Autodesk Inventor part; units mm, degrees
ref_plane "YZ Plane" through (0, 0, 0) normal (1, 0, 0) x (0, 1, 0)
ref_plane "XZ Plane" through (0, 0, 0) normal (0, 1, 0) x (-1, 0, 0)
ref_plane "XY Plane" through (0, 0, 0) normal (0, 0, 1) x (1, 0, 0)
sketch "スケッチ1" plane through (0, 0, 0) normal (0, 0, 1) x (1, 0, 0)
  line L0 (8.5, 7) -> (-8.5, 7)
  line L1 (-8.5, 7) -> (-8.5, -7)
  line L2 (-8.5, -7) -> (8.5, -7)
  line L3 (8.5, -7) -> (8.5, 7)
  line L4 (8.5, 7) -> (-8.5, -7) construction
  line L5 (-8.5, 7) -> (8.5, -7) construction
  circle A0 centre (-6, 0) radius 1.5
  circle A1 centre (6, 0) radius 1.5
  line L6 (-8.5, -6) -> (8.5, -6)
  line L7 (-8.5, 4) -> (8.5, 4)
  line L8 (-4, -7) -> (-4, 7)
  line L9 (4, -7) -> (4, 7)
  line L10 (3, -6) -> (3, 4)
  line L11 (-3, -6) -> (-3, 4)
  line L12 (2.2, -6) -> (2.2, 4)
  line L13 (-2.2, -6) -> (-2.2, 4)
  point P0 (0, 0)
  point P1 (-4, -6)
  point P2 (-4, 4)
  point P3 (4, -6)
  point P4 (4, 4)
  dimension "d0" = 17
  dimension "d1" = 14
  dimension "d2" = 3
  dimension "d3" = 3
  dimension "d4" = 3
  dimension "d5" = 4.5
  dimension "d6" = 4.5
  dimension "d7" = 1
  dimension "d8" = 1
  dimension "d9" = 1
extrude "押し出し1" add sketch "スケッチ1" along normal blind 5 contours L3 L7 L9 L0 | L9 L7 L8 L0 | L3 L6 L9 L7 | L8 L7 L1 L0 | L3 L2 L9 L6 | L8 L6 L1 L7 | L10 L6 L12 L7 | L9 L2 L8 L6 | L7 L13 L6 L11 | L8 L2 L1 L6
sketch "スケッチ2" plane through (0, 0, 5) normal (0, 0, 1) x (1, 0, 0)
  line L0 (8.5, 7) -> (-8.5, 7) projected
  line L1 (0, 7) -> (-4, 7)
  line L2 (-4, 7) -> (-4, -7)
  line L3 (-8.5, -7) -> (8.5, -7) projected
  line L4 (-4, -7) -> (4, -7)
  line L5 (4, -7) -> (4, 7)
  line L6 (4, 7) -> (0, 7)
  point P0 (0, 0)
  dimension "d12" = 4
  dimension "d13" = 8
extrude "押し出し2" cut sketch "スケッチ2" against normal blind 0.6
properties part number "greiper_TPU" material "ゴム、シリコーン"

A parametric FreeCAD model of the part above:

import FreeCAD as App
import Part
import Sketcher

V = App.Vector
Q = App.Units.Quantity


def add_polygon(sketch, points):
    """Adds a closed chain of lines whose ends are joined by coincident constraints."""
    first, n = sketch.GeometryCount, len(points)
    for a, b in zip(points, points[1:] + points[:1]):
        sketch.addGeometry(Part.LineSegment(App.Vector(*a, 0), App.Vector(*b, 0)), False)
    for i in range(n):
        sketch.addConstraint(Sketcher.Constraint("Coincident", first + i, 2, first + (i + 1) % n, 1))

doc = App.newDocument("Part")
params = doc.addObject("Spreadsheet::Sheet", "Params")
for row, (alias, value) in enumerate([
    ("sketch1_diameter", "3 mm"),
    ("sketch1_width", "17 mm"),
    ("sketch1_width2", "1 mm"),
    ("sketch1_height", "14 mm"),
    ("sketch1_width3", "4.4 mm"),
    ("pad1_length", "5 mm"),
    ("sketch2_width", "8 mm"),
    ("sketch2_height", "14 mm"),
    ("pocket1_length", "0.6 mm"),
], start=1):
    params.set(f"A{row}", alias)
    params.set(f"B{row}", "=" + value)
    params.setAlias(f"B{row}", alias)

body = doc.addObject("PartDesign::Body", "Body")

# Sketch on XY plane
sketch1 = body.newObject("Sketcher::SketchObject", "Sketch")
sketch1.AttachmentSupport = (doc.getObject("XY_Plane"), [""])
sketch1.MapMode = "FlatFace"
add_polygon(sketch1, [(8.5, 7), (-8.5, 7), (-8.5, -7), (8.5, -7)])  # lines 0-3
add_polygon(sketch1, [(4, 4), (4, -6), (3, -6), (3, 4)])  # lines 4-7
sketch1.addGeometry(Part.Circle(V(6, 0, 0), V(0, 0, 1), 1.5), False)  # 8
add_polygon(sketch1, [(-2.2, 4), (2.2, 4), (2.2, -6), (-2.2, -6)])  # lines 9-12
add_polygon(sketch1, [(-4, 4), (-3, 4), (-3, -6), (-4, -6)])  # lines 13-16
sketch1.addGeometry(Part.Circle(V(-6, 0, 0), V(0, 0, 1), 1.5), False)  # 17
sketch1.addConstraint([
    Sketcher.Constraint("Horizontal", 0),
    Sketcher.Constraint("Vertical", 1),
    Sketcher.Constraint("Horizontal", 2),
    Sketcher.Constraint("Vertical", 3),
    Sketcher.Constraint("Vertical", 4),
    Sketcher.Constraint("Horizontal", 5),
    Sketcher.Constraint("Vertical", 6),
    Sketcher.Constraint("Horizontal", 7),
    Sketcher.Constraint("Horizontal", 9),
    Sketcher.Constraint("Vertical", 10),
    Sketcher.Constraint("Horizontal", 11),
    Sketcher.Constraint("Vertical", 12),
    Sketcher.Constraint("Horizontal", 13),
    Sketcher.Constraint("Vertical", 14),
    Sketcher.Constraint("Horizontal", 15),
    Sketcher.Constraint("Vertical", 16),
    Sketcher.Constraint("Equal", 8, 17),
    Sketcher.Constraint("Symmetric", 8, 3, 17, 3, -1, 1),
    Sketcher.Constraint("Symmetric", 0, 2, 2, 2, -1, 1),
    Sketcher.Constraint("Symmetric", 6, 2, 13, 2, -2),
    Sketcher.Constraint("Symmetric", 4, 2, 15, 2, -2),
    Sketcher.Constraint("PointOnObject", 8, 3, -1),
    Sketcher.Constraint("Horizontal", 7, 2, 9, 2),
    Sketcher.Constraint("Horizontal", 5, 2, 10, 2),
    Sketcher.Constraint("Diameter", 8, Q("3 mm")),
    Sketcher.Constraint("DistanceX", 0, 2, 0, 1, Q("17 mm")),
    Sketcher.Constraint("DistanceX", 5, 2, 5, 1, Q("1 mm")),
    Sketcher.Constraint("DistanceY", 1, 2, 1, 1, Q("14 mm")),
    Sketcher.Constraint("DistanceX", -1, 1, 5, 2, Q("3 mm")),
    Sketcher.Constraint("DistanceY", 2, 2, 4, 2, Q("1 mm")),
    Sketcher.Constraint("DistanceX", 5, 2, 8, 3, Q("3 mm")),
    Sketcher.Constraint("DistanceY", 6, 2, 3, 2, Q("3 mm")),
    Sketcher.Constraint("DistanceX", 9, 1, 9, 2, Q("4.4 mm")),
    Sketcher.Constraint("DistanceX", -1, 1, 9, 2, Q("2.2 mm")),
])
sketch1.setExpression("Constraints[40]", "Params.sketch1_diameter")
sketch1.setExpression("Constraints[41]", "Params.sketch1_width")
sketch1.setExpression("Constraints[42]", "Params.sketch1_width2")
sketch1.setExpression("Constraints[43]", "Params.sketch1_height")
sketch1.setExpression("Constraints[48]", "Params.sketch1_width3")
pad1 = body.newObject("PartDesign::Pad", "Pad")
pad1.Profile = sketch1
pad1.setExpression("Length", "Params.pad1_length")

# Sketch on XY plane
sketch2 = body.newObject("Sketcher::SketchObject", "Sketch001")
sketch2.AttachmentSupport = (doc.getObject("XY_Plane"), [""])
sketch2.MapMode = "FlatFace"
sketch2.AttachmentOffset = App.Placement(V(0, 0, 5), App.Rotation())
add_polygon(sketch2, [(4, -7), (4, 7), (-4, 7), (-4, -7)])  # lines 0-3
sketch2.addConstraint([
    Sketcher.Constraint("Vertical", 0),
    Sketcher.Constraint("Horizontal", 1),
    Sketcher.Constraint("Vertical", 2),
    Sketcher.Constraint("Horizontal", 3),
    Sketcher.Constraint("Symmetric", 0, 2, 2, 2, -1, 1),
    Sketcher.Constraint("DistanceX", 1, 2, 1, 1, Q("8 mm")),
    Sketcher.Constraint("DistanceY", 0, 1, 0, 2, Q("14 mm")),
])
sketch2.setExpression("Constraints[9]", "Params.sketch2_width")
sketch2.setExpression("Constraints[10]", "Params.sketch2_height")
pocket1 = body.newObject("PartDesign::Pocket", "Pocket")
pocket1.Profile = sketch2
pocket1.setExpression("Length", "Params.pocket1_length")

doc.recompute()
